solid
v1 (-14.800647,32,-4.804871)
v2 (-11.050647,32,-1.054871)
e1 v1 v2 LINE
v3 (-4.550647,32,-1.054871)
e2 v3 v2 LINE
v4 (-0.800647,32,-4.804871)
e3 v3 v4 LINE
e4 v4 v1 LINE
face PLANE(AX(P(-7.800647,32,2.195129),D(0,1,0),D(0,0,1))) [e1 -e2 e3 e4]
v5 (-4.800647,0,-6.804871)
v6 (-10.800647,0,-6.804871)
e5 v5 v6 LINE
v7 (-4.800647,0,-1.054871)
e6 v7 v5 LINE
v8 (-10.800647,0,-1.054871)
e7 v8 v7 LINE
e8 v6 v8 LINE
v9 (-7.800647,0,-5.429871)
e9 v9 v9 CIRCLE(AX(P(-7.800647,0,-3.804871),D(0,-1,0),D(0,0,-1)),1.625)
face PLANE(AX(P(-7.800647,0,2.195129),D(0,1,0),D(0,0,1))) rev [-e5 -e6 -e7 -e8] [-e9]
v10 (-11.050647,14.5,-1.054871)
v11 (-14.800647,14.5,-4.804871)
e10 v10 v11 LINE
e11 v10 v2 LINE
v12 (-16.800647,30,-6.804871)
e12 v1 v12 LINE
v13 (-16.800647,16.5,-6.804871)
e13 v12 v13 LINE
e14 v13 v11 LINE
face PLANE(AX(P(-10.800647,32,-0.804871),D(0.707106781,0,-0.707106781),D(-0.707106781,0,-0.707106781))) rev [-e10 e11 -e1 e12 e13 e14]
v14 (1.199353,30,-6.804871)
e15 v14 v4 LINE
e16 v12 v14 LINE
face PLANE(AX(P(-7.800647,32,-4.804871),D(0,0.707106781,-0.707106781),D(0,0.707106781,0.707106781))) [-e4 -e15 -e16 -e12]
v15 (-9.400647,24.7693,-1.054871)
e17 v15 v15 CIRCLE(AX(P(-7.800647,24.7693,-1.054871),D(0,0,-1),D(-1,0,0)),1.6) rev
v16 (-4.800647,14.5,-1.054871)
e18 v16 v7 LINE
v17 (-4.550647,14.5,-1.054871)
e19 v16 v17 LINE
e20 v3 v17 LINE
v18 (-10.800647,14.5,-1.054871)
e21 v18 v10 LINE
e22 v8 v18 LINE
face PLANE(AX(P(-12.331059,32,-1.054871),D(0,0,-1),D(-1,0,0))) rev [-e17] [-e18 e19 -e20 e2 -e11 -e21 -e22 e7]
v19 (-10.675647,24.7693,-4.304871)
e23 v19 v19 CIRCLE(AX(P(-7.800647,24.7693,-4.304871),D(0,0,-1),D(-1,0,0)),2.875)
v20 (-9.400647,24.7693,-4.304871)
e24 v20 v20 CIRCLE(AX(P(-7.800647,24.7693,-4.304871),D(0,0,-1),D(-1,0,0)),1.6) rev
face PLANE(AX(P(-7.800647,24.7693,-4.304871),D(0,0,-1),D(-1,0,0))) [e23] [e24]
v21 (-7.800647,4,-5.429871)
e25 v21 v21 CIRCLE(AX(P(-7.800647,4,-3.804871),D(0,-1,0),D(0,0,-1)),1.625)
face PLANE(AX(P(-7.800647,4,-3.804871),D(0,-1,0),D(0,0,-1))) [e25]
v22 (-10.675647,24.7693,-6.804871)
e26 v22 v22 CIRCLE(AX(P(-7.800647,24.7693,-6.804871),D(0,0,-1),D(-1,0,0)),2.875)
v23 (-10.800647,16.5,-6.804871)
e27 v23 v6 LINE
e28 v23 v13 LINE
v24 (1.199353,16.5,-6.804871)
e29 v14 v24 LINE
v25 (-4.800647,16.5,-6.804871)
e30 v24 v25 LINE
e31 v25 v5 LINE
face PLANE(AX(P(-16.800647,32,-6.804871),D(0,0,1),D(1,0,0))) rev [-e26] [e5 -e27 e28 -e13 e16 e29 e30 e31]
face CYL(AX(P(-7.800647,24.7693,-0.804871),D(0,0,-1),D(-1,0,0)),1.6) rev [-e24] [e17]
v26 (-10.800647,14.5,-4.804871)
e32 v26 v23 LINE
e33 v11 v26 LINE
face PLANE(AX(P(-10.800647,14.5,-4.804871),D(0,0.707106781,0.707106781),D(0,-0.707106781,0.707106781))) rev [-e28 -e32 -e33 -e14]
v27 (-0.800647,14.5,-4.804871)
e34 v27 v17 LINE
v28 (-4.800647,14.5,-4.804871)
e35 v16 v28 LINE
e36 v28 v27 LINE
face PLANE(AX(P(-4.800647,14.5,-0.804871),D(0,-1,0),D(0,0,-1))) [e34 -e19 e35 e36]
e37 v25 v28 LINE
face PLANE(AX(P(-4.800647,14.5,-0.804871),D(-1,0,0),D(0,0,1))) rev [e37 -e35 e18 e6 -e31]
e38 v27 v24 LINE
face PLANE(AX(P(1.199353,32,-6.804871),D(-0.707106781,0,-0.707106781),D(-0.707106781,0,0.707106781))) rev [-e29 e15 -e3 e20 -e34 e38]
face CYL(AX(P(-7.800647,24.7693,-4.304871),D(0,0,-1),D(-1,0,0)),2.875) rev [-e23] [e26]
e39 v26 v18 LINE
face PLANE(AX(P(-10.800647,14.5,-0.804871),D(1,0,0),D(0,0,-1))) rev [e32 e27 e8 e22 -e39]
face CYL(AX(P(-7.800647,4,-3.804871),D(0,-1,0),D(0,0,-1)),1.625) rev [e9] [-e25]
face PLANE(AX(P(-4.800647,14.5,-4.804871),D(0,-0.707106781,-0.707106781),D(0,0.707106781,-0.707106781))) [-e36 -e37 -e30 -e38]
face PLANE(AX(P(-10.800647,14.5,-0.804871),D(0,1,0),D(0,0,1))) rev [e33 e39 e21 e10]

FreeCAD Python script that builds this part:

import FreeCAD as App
import Part
import Sketcher

V = App.Vector
Q = App.Units.Quantity


def edges_at(feature, points):
    """Names of the edges that pass closest to the given points."""
    edges = feature.Shape.Edges
    near = lambda p: min(range(len(edges)), key=lambda i: edges[i].distToShape(Part.Vertex(*p))[0])
    return sorted({f"Edge{near(p) + 1}" for p in points})

doc = App.newDocument("Part")
body = doc.addObject("PartDesign::Body", "Body")

# Sketch on XZ plane
sketch1 = body.newObject("Sketcher::SketchObject", "Sketch")
sketch1.AttachmentSupport = (doc.getObject("XZ_Plane"), [""])
sketch1.MapMode = "FlatFace"
sketch1.addGeometry([
    Part.LineSegment(V(1, -7, 0), V(-17, -7, 0)),
    Part.LineSegment(V(-17, -7, 0), V(-11, -1, 0)),
    Part.LineSegment(V(-11, -1, 0), V(-5, -1, 0)),
    Part.LineSegment(V(-5, -1, 0), V(1, -7, 0)),
], False)
sketch1.addConstraint([
    Sketcher.Constraint("Coincident", 0, 2, 1, 1),
    Sketcher.Constraint("Coincident", 1, 2, 2, 1),
    Sketcher.Constraint("Coincident", 2, 2, 3, 1),
    Sketcher.Constraint("Coincident", 3, 2, 0, 1),
    Sketcher.Constraint("Horizontal", 0),
    Sketcher.Constraint("Horizontal", 2),
    Sketcher.Constraint("Perpendicular", 1, 3),
    Sketcher.Constraint("Equal", 1, 3),
    Sketcher.Constraint("DistanceX", 0, 2, 0, 1, Q("18 mm")),
    Sketcher.Constraint("DistanceX", 2, 1, 2, 2, Q("6 mm")),
    Sketcher.Constraint("DistanceY", 0, 2, -1, 1, Q("6.804871 mm")),
    Sketcher.Constraint("DistanceX", 0, 2, -1, 1, Q("16.800647 mm")),
])
pad1 = body.newObject("PartDesign::Pad", "Pad")
pad1.Profile = sketch1
pad1.Length = 32
pad1.Reversed = True
doc.recompute()

chamfer = body.newObject("PartDesign::Chamfer", "Chamfer")
chamfer.Base = (pad1, edges_at(pad1, [(-7.801, 32, -6.805)]))
chamfer.Size = 2

# Sketch on XZ plane
sketch2 = body.newObject("Sketcher::SketchObject", "Sketch001")
sketch2.AttachmentSupport = (doc.getObject("XZ_Plane"), [""])
sketch2.MapMode = "FlatFace"
sketch2.addGeometry([
    Part.LineSegment(V(-5, -1, 0), V(-5, -7, 0)),  # 0
    Part.LineSegment(V(-5, -7, 0), V(1, -7, 0)),  # 1
    Part.LineSegment(V(1, -7, 0), V(-5, -1, 0)),  # 2
    Part.LineSegment(V(-11, -7, 0), V(-11, -1, 0)),  # 3
    Part.LineSegment(V(-11, -1, 0), V(-17, -7, 0)),  # 4
    Part.LineSegment(V(-17, -7, 0), V(-11, -7, 0)),  # 5
], False)
sketch2.addConstraint([
    Sketcher.Constraint("Coincident", 0, 2, 1, 1),
    Sketcher.Constraint("Coincident", 1, 2, 2, 1),
    Sketcher.Constraint("Coincident", 2, 2, 0, 1),
    Sketcher.Constraint("Coincident", 3, 2, 4, 1),
    Sketcher.Constraint("Coincident", 4, 2, 5, 1),
    Sketcher.Constraint("Coincident", 5, 2, 3, 1),
    Sketcher.Constraint("Vertical", 0),
    Sketcher.Constraint("Horizontal", 1),
    Sketcher.Constraint("Vertical", 3),
    Sketcher.Constraint("Horizontal", 5),
    Sketcher.Constraint("Perpendicular", 2, 4),
    Sketcher.Constraint("Horizontal", 2, 2, 3, 2),
    Sketcher.Constraint("Horizontal", 1, 2, 4, 2),
    Sketcher.Constraint("Equal", 1, 5),
    Sketcher.Constraint("DistanceX", 1, 1, 1, 2, Q("6 mm")),
    Sketcher.Constraint("DistanceX", 3, 2, 2, 2, Q("6 mm")),
    Sketcher.Constraint("DistanceY", 0, 2, -1, 1, Q("6.804871 mm")),
    Sketcher.Constraint("DistanceX", 0, 2, -1, 1, Q("4.800647 mm")),
])
pocket1 = body.newObject("PartDesign::Pocket", "Pocket")
pocket1.Profile = sketch2
pocket1.Length = 14.5
doc.recompute()

chamfer2 = body.newObject("PartDesign::Chamfer", "Chamfer001")
chamfer2.Base = (pocket1, edges_at(pocket1, [(-1.801, 14.5, -6.805), (-13.801, 14.5, -6.805)]))
chamfer2.Size = 2

# Sketch on XZ plane
sketch3 = body.newObject("Sketcher::SketchObject", "Sketch002")
sketch3.AttachmentSupport = (doc.getObject("XZ_Plane"), [""])
sketch3.MapMode = "FlatFace"
sketch3.addGeometry(Part.Circle(V(-7.8, -3.8, 0), V(0, 0, 1), 1.6), False)
sketch3.addConstraint([
    Sketcher.Constraint("Diameter", 0, Q("3.25 mm")),
    Sketcher.Constraint("DistanceY", 0, 3, -1, 1, Q("3.804871 mm")),
    Sketcher.Constraint("DistanceX", 0, 3, -1, 1, Q("7.800647 mm")),
])
pocket2 = body.newObject("PartDesign::Pocket", "Pocket001")
pocket2.Profile = sketch3
pocket2.Length = 4

# Sketch on XY plane
sketch4 = body.newObject("Sketcher::SketchObject", "Sketch003")
sketch4.AttachmentSupport = (doc.getObject("XY_Plane"), [""])
sketch4.MapMode = "FlatFace"
sketch4.AttachmentOffset = App.Placement(V(0, 0, -6.804871), App.Rotation())
sketch4.addGeometry(Part.Circle(V(-7.8, 24.8, 0), V(0, 0, 1), 1.6), False)
sketch4.addConstraint([
    Sketcher.Constraint("Diameter", 0, Q("3.2 mm")),
    Sketcher.Constraint("DistanceY", -1, 1, 0, 3, Q("24.7693 mm")),
    Sketcher.Constraint("DistanceX", 0, 3, -1, 1, Q("7.800647 mm")),
])
pocket3 = body.newObject("PartDesign::Pocket", "Pocket002")
pocket3.Profile = sketch4
pocket3.Type = "ThroughAll"
pocket3.Reversed = True

# Sketch on XY plane
sketch5 = body.newObject("Sketcher::SketchObject", "Sketch004")
sketch5.AttachmentSupport = (doc.getObject("XY_Plane"), [""])
sketch5.MapMode = "FlatFace"
sketch5.AttachmentOffset = App.Placement(V(0, 0, -6.804871), App.Rotation())
sketch5.addGeometry(Part.Circle(V(-7.8, 24.8, 0), V(0, 0, 1), 2.9), False)
sketch5.addConstraint([
    Sketcher.Constraint("Diameter", 0, Q("5.75 mm")),
    Sketcher.Constraint("DistanceY", -1, 1, 0, 3, Q("24.7693 mm")),
    Sketcher.Constraint("DistanceX", 0, 3, -1, 1, Q("7.800647 mm")),
])
pocket4 = body.newObject("PartDesign::Pocket", "Pocket003")
pocket4.Profile = sketch5
pocket4.Length = 2.5
pocket4.Reversed = True

# Sketch on XY plane
sketch6 = body.newObject("Sketcher::SketchObject", "Sketch005")
sketch6.AttachmentSupport = (doc.getObject("XY_Plane"), [""])
sketch6.MapMode = "FlatFace"
sketch6.AttachmentOffset = App.Placement(V(0, 0, -0.804871), App.Rotation())
sketch6.addGeometry([
    Part.LineSegment(V(-12, 32, 0), V(-12, 0, 0)),
    Part.LineSegment(V(-12, 0, 0), V(-2, 0, 0)),
    Part.LineSegment(V(-2, 0, 0), V(-2, 32, 0)),
    Part.LineSegment(V(-2, 32, 0), V(-12, 32, 0)),
], False)
sketch6.addConstraint([
    Sketcher.Constraint("Coincident", 0, 2, 1, 1),
    Sketcher.Constraint("Coincident", 1, 2, 2, 1),
    Sketcher.Constraint("Coincident", 2, 2, 3, 1),
    Sketcher.Constraint("Coincident", 3, 2, 0, 1),
    Sketcher.Constraint("Vertical", 0),
    Sketcher.Constraint("Horizontal", 1),
    Sketcher.Constraint("Vertical", 2),
    Sketcher.Constraint("Horizontal", 3),
    Sketcher.Constraint("PointOnObject", 0, 2, -1),
    Sketcher.Constraint("DistanceY", 0, 2, 0, 1, Q("32 mm")),
    Sketcher.Constraint("DistanceX", 1, 1, 1, 2, Q("9.951007 mm")),
    Sketcher.Constraint("DistanceX", 0, 2, -1, 1, Q("12.331059 mm")),
])
pocket5 = body.newObject("PartDesign::Pocket", "Pocket004")
pocket5.Profile = sketch6
pocket5.Length = 0.25

doc.recompute()
